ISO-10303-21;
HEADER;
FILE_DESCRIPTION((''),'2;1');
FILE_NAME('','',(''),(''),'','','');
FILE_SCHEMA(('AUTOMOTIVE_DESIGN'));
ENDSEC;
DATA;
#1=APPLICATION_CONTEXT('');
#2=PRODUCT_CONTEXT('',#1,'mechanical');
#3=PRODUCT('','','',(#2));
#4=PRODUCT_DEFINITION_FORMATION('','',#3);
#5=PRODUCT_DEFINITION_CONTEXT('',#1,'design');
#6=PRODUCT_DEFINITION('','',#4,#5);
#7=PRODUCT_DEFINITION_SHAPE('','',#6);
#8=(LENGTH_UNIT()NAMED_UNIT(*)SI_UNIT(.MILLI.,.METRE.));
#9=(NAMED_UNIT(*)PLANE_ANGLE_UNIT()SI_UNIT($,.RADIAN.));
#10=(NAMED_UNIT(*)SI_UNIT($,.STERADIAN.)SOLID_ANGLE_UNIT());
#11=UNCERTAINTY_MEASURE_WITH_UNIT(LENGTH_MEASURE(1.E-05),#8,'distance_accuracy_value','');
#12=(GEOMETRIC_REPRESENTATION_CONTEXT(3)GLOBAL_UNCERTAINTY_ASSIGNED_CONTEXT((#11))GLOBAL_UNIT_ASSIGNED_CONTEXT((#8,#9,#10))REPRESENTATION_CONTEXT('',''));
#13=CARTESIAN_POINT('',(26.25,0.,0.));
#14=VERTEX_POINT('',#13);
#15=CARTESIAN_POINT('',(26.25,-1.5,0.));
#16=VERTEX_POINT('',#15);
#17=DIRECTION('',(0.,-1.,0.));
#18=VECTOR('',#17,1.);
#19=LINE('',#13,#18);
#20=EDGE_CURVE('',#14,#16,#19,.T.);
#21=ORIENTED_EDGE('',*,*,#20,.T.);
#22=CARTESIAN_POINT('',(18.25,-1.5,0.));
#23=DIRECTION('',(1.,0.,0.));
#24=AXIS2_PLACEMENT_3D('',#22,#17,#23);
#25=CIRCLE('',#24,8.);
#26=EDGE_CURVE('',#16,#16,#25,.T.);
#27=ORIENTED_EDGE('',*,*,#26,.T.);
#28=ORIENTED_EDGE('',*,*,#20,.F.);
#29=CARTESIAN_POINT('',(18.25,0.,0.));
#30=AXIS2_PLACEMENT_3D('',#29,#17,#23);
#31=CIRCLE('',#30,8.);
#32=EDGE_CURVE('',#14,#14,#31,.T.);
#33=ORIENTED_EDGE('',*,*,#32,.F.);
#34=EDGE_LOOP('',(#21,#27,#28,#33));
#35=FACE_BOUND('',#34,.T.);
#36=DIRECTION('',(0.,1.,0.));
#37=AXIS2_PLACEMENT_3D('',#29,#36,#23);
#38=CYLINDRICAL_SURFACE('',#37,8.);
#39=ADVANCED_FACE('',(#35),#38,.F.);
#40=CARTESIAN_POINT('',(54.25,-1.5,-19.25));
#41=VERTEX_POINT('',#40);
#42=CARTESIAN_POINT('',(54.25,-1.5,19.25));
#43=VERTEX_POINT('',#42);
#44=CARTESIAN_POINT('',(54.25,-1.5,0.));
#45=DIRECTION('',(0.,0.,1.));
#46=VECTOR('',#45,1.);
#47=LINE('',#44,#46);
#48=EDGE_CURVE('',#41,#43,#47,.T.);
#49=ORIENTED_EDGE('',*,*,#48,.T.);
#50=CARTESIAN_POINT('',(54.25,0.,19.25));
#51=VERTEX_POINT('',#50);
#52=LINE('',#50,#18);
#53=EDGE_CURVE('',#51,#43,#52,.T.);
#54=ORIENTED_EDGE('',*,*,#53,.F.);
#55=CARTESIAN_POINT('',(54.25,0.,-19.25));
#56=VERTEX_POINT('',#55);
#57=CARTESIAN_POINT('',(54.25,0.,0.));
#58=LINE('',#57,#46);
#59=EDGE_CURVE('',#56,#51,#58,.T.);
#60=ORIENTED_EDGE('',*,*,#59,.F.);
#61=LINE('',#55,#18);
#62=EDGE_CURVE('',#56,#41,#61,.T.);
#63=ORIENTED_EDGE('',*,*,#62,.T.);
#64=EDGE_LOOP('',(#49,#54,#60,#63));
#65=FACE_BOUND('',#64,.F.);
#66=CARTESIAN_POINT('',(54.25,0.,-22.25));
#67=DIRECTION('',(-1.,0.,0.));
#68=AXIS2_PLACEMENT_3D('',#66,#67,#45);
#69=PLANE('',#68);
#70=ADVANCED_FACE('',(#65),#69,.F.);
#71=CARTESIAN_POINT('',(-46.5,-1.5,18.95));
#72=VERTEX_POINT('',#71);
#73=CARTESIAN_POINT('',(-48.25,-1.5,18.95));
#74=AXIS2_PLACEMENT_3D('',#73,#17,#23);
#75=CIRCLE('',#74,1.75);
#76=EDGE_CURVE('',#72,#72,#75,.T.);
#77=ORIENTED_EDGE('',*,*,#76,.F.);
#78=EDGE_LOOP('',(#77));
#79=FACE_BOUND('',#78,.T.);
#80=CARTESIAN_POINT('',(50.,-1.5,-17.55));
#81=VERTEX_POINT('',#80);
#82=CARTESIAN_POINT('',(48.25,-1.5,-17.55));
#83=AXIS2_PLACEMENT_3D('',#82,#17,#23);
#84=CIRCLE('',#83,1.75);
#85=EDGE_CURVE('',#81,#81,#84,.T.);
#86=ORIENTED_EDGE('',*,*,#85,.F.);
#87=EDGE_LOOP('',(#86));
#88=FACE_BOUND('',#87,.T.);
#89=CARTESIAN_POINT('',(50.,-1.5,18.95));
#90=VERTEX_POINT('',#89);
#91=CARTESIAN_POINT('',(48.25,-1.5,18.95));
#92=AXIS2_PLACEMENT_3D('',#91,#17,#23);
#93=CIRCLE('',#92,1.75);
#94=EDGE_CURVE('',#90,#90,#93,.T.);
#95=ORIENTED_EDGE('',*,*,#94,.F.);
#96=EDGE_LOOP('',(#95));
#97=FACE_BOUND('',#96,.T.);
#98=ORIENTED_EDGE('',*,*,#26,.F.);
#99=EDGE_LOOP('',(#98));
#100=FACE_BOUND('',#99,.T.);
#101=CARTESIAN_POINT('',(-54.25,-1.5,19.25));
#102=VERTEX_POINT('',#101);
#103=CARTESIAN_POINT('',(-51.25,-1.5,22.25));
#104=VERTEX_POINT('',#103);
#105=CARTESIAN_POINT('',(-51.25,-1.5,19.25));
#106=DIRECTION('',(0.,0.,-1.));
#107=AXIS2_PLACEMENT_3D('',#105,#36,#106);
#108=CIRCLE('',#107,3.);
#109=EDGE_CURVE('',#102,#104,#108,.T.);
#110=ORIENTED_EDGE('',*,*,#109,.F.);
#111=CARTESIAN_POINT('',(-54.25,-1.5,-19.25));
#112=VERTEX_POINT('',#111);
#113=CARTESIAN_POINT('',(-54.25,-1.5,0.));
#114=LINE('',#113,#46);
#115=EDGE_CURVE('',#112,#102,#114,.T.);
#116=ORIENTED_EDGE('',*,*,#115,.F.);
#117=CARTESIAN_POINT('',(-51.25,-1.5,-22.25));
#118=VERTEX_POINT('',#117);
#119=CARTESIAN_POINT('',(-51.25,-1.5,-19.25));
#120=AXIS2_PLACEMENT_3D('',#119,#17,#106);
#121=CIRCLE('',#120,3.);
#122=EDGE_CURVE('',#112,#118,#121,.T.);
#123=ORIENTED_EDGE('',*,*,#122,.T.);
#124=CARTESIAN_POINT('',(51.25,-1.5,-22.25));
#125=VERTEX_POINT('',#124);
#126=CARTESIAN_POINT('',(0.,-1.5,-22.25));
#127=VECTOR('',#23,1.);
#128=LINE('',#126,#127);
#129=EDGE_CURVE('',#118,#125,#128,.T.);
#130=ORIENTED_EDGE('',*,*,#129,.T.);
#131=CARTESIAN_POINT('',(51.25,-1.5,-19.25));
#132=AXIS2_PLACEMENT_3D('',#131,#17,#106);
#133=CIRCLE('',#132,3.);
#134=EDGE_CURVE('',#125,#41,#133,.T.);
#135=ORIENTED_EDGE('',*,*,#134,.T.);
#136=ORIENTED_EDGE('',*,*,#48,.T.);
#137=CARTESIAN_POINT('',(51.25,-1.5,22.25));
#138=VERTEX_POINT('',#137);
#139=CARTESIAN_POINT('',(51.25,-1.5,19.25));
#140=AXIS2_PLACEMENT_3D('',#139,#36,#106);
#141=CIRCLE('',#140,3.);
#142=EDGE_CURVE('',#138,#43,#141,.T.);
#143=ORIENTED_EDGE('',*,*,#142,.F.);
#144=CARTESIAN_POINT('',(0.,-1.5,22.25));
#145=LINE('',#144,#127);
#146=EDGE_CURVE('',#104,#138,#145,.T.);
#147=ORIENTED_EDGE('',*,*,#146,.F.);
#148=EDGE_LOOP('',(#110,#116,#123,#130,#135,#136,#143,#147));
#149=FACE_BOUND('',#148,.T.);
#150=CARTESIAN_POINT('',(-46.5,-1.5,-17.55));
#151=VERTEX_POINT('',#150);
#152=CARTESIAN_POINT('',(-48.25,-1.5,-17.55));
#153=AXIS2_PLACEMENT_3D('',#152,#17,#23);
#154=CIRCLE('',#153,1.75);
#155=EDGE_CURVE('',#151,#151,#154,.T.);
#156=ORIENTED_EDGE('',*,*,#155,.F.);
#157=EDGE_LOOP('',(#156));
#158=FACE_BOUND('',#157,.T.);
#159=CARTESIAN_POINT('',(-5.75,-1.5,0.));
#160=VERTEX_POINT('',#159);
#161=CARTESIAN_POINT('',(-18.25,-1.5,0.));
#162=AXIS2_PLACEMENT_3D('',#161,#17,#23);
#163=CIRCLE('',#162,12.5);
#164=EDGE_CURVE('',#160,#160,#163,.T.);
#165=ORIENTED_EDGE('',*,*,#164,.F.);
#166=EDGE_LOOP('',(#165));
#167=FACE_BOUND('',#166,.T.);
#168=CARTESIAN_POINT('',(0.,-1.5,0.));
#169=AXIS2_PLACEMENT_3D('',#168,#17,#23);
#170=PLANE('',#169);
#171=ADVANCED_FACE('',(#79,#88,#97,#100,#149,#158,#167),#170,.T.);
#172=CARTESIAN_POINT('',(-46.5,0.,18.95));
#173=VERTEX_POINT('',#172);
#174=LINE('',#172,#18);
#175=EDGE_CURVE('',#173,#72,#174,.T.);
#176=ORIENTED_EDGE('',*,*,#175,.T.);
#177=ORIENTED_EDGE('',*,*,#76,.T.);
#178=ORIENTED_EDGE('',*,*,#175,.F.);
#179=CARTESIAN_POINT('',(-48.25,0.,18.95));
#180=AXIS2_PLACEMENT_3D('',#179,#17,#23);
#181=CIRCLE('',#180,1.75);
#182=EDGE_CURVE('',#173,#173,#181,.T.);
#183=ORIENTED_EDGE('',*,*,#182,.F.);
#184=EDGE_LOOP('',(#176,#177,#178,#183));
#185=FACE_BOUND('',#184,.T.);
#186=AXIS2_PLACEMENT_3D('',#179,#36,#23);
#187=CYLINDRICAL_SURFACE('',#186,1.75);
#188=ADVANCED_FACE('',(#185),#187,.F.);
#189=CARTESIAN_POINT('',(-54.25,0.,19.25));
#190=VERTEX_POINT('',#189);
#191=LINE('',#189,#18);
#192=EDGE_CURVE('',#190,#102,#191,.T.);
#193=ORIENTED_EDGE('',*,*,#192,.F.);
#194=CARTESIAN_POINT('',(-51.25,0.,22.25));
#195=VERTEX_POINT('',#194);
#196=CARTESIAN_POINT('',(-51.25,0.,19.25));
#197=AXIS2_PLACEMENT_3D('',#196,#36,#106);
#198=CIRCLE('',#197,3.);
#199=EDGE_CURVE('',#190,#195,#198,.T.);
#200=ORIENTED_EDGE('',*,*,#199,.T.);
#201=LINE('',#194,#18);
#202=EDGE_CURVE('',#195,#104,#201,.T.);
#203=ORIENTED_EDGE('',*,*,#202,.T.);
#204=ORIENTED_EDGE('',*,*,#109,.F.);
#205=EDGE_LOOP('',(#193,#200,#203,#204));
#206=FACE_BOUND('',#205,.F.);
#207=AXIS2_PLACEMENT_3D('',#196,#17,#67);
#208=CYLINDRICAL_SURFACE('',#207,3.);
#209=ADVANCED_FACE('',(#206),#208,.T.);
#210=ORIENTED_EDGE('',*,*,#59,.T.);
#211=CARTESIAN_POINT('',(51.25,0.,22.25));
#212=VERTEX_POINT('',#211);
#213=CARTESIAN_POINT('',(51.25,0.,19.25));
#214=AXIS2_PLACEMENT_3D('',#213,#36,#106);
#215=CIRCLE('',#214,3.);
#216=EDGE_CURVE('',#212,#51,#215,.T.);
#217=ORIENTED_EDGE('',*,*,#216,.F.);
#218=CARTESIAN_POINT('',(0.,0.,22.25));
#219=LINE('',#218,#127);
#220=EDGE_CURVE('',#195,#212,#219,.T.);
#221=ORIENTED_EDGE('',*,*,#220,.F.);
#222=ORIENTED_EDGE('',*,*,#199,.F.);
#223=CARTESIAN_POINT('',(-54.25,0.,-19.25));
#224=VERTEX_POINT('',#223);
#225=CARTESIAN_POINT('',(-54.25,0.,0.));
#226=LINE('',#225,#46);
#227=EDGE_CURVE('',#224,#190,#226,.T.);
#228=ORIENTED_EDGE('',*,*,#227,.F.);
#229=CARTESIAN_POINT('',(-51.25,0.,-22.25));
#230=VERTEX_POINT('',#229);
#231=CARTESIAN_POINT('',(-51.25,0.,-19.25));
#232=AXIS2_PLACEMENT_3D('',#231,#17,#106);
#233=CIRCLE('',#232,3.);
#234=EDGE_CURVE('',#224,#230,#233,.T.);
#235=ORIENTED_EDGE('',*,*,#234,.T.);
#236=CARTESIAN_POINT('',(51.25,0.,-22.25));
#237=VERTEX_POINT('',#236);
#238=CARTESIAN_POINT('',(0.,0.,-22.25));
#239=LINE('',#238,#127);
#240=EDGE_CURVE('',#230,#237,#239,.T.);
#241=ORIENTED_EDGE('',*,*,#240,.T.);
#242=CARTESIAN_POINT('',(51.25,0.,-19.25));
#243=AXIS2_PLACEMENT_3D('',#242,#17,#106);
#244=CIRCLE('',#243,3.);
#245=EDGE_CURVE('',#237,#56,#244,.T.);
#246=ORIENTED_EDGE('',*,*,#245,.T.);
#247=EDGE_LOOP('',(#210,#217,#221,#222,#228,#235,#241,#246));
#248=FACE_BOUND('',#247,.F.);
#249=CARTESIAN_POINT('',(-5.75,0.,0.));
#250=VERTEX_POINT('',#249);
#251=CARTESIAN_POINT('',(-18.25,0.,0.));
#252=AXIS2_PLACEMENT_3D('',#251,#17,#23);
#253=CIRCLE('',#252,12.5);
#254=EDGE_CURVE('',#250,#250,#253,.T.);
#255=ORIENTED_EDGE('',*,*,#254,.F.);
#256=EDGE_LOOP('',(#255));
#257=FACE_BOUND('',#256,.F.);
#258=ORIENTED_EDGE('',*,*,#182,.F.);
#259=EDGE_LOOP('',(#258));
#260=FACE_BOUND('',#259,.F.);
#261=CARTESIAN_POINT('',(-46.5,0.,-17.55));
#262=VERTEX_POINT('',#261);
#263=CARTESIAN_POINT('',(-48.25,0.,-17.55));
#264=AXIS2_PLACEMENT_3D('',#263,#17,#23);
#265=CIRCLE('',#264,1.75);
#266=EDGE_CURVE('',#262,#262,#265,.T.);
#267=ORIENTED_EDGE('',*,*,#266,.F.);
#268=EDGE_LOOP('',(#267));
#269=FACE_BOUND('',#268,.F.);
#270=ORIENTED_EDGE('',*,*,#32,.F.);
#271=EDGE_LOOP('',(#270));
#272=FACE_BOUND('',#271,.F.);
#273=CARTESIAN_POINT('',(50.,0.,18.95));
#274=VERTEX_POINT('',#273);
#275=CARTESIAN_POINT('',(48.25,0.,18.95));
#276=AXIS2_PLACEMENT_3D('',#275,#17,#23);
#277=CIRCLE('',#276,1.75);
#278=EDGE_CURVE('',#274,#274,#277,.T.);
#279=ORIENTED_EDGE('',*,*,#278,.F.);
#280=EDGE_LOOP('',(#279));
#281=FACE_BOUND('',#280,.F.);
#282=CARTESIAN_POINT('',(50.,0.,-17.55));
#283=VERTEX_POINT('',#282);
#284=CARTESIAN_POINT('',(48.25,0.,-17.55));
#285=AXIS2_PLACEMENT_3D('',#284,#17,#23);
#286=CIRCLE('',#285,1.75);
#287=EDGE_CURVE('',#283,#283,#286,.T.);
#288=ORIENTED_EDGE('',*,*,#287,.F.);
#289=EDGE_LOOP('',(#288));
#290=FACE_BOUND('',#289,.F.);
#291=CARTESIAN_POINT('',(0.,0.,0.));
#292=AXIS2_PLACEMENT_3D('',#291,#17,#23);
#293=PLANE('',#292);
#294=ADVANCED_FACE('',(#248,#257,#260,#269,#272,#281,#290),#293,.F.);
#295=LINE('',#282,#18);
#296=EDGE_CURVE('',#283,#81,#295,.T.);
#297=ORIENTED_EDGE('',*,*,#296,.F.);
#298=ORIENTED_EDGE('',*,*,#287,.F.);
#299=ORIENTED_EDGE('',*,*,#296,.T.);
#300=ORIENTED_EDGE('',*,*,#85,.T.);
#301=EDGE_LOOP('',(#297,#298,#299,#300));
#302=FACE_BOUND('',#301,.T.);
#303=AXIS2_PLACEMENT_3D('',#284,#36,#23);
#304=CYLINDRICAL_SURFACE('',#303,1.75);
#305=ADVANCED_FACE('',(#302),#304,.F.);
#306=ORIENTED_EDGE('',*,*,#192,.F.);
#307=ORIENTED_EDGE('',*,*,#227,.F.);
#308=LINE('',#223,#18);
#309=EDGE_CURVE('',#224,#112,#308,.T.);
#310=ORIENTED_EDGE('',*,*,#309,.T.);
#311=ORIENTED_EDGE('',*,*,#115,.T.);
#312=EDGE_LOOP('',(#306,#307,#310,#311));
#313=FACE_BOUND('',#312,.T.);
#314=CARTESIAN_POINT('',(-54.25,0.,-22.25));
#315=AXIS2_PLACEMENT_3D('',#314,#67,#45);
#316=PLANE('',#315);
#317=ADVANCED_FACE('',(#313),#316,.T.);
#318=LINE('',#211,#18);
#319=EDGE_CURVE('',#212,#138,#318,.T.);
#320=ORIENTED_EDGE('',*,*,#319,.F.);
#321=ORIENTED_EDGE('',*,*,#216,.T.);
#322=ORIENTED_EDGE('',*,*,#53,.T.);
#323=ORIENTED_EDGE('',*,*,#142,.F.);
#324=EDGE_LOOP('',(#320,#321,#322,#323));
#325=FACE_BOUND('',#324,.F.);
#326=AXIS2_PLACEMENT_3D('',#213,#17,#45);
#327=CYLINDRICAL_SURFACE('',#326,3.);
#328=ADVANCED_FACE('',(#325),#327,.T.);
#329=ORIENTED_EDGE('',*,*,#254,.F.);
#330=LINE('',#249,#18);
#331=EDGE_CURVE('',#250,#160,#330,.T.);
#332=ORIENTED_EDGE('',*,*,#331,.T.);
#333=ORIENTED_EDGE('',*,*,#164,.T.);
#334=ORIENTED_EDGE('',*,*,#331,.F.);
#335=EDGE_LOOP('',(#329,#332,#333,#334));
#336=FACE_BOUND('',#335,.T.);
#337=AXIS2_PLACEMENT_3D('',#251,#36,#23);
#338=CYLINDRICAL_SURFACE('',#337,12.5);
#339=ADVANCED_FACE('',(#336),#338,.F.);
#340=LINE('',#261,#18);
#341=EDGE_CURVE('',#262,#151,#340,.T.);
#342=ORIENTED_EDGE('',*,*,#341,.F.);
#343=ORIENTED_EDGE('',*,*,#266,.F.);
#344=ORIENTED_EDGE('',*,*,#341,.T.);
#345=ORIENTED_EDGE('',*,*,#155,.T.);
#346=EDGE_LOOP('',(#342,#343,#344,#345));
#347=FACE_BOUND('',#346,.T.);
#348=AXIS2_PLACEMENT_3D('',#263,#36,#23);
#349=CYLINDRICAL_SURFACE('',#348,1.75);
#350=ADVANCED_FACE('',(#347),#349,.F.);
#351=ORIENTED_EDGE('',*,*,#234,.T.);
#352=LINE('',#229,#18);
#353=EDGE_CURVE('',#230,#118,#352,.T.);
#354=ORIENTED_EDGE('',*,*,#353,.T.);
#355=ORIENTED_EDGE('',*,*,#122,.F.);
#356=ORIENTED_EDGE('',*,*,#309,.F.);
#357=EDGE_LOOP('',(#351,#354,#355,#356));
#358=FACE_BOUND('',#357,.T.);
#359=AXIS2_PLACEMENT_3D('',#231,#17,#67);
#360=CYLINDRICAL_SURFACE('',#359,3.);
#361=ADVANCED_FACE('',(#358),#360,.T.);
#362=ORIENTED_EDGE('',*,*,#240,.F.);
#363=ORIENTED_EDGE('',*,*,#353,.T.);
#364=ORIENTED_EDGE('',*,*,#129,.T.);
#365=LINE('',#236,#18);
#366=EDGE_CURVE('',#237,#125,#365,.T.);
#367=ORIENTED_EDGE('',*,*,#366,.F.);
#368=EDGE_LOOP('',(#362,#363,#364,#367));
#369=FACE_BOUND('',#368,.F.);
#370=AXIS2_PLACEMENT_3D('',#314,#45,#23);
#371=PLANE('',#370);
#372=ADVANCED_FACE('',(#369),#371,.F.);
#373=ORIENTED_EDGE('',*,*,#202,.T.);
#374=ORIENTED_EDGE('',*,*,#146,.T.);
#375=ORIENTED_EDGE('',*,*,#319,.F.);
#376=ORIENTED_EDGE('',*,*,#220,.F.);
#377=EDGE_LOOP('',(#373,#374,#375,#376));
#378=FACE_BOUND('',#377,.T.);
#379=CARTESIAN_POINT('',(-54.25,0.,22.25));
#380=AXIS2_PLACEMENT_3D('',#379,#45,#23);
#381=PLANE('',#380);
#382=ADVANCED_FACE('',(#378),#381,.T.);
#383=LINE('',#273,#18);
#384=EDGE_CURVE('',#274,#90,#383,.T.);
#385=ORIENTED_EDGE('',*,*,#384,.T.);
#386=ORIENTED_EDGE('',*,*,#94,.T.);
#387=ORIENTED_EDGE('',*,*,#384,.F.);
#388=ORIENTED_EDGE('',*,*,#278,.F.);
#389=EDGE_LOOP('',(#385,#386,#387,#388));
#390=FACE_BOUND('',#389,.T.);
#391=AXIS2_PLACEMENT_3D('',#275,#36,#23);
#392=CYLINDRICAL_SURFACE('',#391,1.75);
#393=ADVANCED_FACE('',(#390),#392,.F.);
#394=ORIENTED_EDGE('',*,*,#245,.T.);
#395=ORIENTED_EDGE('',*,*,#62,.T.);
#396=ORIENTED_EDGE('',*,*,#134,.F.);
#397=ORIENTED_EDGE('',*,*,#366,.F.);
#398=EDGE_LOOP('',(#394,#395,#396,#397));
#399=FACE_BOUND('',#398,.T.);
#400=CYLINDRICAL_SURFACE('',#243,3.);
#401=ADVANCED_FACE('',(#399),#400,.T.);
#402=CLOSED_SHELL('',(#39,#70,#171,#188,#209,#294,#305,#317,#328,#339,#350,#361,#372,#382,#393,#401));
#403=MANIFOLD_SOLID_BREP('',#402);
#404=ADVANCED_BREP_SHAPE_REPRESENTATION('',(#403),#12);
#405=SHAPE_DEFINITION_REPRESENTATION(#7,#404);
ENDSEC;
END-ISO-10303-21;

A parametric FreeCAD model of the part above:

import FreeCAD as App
import Part
import Sketcher
from FreeCAD import Vector


def edges_at(feature, points):
    """Names of the edges that pass closest to the given points."""
    edges = feature.Shape.Edges
    near = lambda p: min(range(len(edges)), key=lambda i: edges[i].distToShape(Part.Vertex(*p))[0])
    return sorted({f"Edge{near(p) + 1}" for p in points})


def add_polygon(sketch, points):
    """Adds a closed chain of lines whose ends are joined by coincident constraints."""
    first, n = sketch.GeometryCount, len(points)
    for a, b in zip(points, points[1:] + points[:1]):
        sketch.addGeometry(Part.LineSegment(App.Vector(*a, 0), App.Vector(*b, 0)), False)
    for i in range(n):
        sketch.addConstraint(Sketcher.Constraint("Coincident", first + i, 2, first + (i + 1) % n, 1))

doc = App.newDocument("Part")
body = doc.addObject("PartDesign::Body", "Body")

# Sketch on XZ plane
sketch1 = body.newObject("Sketcher::SketchObject", "Sketch")
sketch1.AttachmentSupport = (doc.getObject("XZ_Plane"), [""])
sketch1.MapMode = "FlatFace"
add_polygon(sketch1, [(-54.25, 22.25), (-54.25, -22.25), (54.25, -22.25), (54.25, 22.25)])  # lines 0-3
sketch1.addGeometry(Part.Circle(Vector(-48.25, -17.55, 0), Vector(0, 0, 1), 1.75), False)  # 4
sketch1.addGeometry(Part.Circle(Vector(-18.25, 0, 0), Vector(0, 0, 1), 12.5), False)  # 5
sketch1.addGeometry(Part.Circle(Vector(48.25, -17.55, 0), Vector(0, 0, 1), 1.75), False)  # 6
sketch1.addGeometry(Part.Circle(Vector(18.25, 0, 0), Vector(0, 0, 1), 8), False)  # 7
sketch1.addGeometry(Part.Circle(Vector(-48.25, 18.95, 0), Vector(0, 0, 1), 1.75), False)  # 8
sketch1.addGeometry(Part.Circle(Vector(48.25, 18.95, 0), Vector(0, 0, 1), 1.75), False)  # 9
sketch1.addConstraint([
    Sketcher.Constraint("Vertical", 0),
    Sketcher.Constraint("Horizontal", 1),
    Sketcher.Constraint("Vertical", 2),
    Sketcher.Constraint("Horizontal", 3),
    Sketcher.Constraint("Equal", 4, 6),
    Sketcher.Constraint("Equal", 6, 8),
    Sketcher.Constraint("Equal", 8, 9),
    Sketcher.Constraint("Symmetric", 5, 3, 7, 3, -1, 1),
    Sketcher.Constraint("Symmetric", 0, 2, 2, 2, -1, 1),
    Sketcher.Constraint("Symmetric", 4, 3, 6, 3, -2),
    Sketcher.Constraint("Symmetric", 8, 3, 9, 3, -2),
    Sketcher.Constraint("PointOnObject", 5, 3, -1),
    Sketcher.Constraint("Vertical", 4, 3, 8, 3),
    Sketcher.Constraint("Diameter", 5, 25.0),
    Sketcher.Constraint("Diameter", 7, 16.0),
    Sketcher.Constraint("Diameter", 4, 3.5),
    Sketcher.Constraint("DistanceX", 1, 1, 1, 2, 108.5),
    Sketcher.Constraint("DistanceY", 0, 2, 0, 1, 44.5),
    Sketcher.Constraint("DistanceX", 4, 3, 5, 3, 30.0),
    Sketcher.Constraint("DistanceX", 0, 2, 4, 3, 6.0),
    Sketcher.Constraint("DistanceY", 4, 3, 8, 3, 36.5),
    Sketcher.Constraint("DistanceY", 0, 2, 4, 3, 4.7),
])
pad1 = body.newObject("PartDesign::Pad", "Pad")
pad1.Profile = sketch1
pad1.Length = 1.5
doc.recompute()

fillet = body.newObject("PartDesign::Fillet", "Fillet")
fillet.Base = (pad1, edges_at(pad1, [
    (54.25, -0.75, 22.25),
    (54.25, -0.75, -22.25),
    (-54.25, -0.75, -22.25),
    (-54.25, -0.75, 22.25),
]))
fillet.Radius = 3

doc.recompute()
